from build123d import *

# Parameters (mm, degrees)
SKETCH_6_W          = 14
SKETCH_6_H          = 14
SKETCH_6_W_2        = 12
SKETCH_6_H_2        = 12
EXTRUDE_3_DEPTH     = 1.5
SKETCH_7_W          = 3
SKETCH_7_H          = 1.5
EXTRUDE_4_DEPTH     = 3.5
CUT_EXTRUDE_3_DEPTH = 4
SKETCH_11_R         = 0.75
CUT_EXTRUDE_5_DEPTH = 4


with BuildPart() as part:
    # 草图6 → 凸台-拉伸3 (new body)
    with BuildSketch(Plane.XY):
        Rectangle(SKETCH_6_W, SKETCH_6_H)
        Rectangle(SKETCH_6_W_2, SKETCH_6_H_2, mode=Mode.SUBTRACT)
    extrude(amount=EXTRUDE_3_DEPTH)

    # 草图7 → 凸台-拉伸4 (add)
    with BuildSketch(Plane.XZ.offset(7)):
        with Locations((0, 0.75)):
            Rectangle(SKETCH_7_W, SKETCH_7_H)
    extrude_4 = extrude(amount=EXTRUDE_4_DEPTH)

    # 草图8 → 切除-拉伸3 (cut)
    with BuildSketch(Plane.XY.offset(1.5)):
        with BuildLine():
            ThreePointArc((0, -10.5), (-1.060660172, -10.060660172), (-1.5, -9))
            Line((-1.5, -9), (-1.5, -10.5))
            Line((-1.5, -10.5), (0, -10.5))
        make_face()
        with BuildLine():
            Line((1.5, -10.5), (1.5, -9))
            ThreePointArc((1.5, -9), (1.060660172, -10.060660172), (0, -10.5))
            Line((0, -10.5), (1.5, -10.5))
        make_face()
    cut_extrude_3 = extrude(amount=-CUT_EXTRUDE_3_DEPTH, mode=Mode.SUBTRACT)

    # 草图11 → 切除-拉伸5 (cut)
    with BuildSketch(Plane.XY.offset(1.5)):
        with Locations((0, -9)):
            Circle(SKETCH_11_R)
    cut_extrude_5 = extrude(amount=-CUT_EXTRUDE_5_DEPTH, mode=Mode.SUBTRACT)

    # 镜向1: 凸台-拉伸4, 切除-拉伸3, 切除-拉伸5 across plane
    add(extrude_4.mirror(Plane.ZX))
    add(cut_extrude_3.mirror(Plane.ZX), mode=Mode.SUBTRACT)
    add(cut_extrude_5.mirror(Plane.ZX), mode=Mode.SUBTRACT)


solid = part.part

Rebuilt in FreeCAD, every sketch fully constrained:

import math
import FreeCAD as App
import Part
import Sketcher
from FreeCAD import Vector
Q = App.Units.Quantity

doc = App.newDocument("Part")
body = doc.addObject("PartDesign::Body", "Body")

# Sketch on XY plane
sketch1 = body.newObject("Sketcher::SketchObject", "Sketch")
sketch1.AttachmentSupport = (doc.getObject("XY_Plane"), [""])
sketch1.MapMode = "FlatFace"
sketch1.addGeometry(Part.LineSegment(Vector(-7, 7, 0), Vector(-7, -7, 0)), False)
sketch1.addGeometry(Part.LineSegment(Vector(-7, -7, 0), Vector(7, -7, 0)), False)
sketch1.addGeometry(Part.LineSegment(Vector(7, -7, 0), Vector(7, 7, 0)), False)
sketch1.addGeometry(Part.LineSegment(Vector(7, 7, 0), Vector(-7, 7, 0)), False)
sketch1.addGeometry(Part.LineSegment(Vector(6, -6, 0), Vector(-6, -6, 0)), False)
sketch1.addGeometry(Part.LineSegment(Vector(-6, -6, 0), Vector(-6, 6, 0)), False)
sketch1.addGeometry(Part.LineSegment(Vector(-6, 6, 0), Vector(6, 6, 0)), False)
sketch1.addGeometry(Part.LineSegment(Vector(6, 6, 0), Vector(6, -6, 0)), False)
sketch1.addConstraint(Sketcher.Constraint("Coincident", 0, 2, 1, 1))
sketch1.addConstraint(Sketcher.Constraint("Coincident", 1, 2, 2, 1))
sketch1.addConstraint(Sketcher.Constraint("Coincident", 2, 2, 3, 1))
sketch1.addConstraint(Sketcher.Constraint("Coincident", 3, 2, 0, 1))
sketch1.addConstraint(Sketcher.Constraint("Coincident", 4, 2, 5, 1))
sketch1.addConstraint(Sketcher.Constraint("Coincident", 5, 2, 6, 1))
sketch1.addConstraint(Sketcher.Constraint("Coincident", 6, 2, 7, 1))
sketch1.addConstraint(Sketcher.Constraint("Coincident", 7, 2, 4, 1))
sketch1.addConstraint(Sketcher.Constraint("Vertical", 0))
sketch1.addConstraint(Sketcher.Constraint("Horizontal", 1))
sketch1.addConstraint(Sketcher.Constraint("Vertical", 2))
sketch1.addConstraint(Sketcher.Constraint("Horizontal", 3))
sketch1.addConstraint(Sketcher.Constraint("Horizontal", 4))
sketch1.addConstraint(Sketcher.Constraint("Vertical", 5))
sketch1.addConstraint(Sketcher.Constraint("Horizontal", 6))
sketch1.addConstraint(Sketcher.Constraint("Vertical", 7))
sketch1.addConstraint(Sketcher.Constraint("Symmetric", 0, 2, 2, 2, -1, 1))
sketch1.addConstraint(Sketcher.Constraint("Symmetric", 4, 2, 6, 2, -1, 1))
sketch1.addConstraint(Sketcher.Constraint("Equal", 3, 0))
sketch1.addConstraint(Sketcher.Constraint("Equal", 6, 5))
sketch1.addConstraint(Sketcher.Constraint("DistanceX", 1, 1, 1, 2, Q("14 mm")))
sketch1.addConstraint(Sketcher.Constraint("DistanceX", 4, 2, 4, 1, Q("12 mm")))
pad1 = body.newObject("PartDesign::Pad", "Pad")
pad1.Profile = sketch1
pad1.Length = 1.5

# Sketch on XZ plane
sketch2 = body.newObject("Sketcher::SketchObject", "Sketch001")
sketch2.AttachmentSupport = (doc.getObject("XZ_Plane"), [""])
sketch2.MapMode = "FlatFace"
sketch2.AttachmentOffset = App.Placement(Vector(0, 0, 7), App.Rotation())
sketch2.addGeometry(Part.LineSegment(Vector(-1.5, 1.5, 0), Vector(-1.5, 0, 0)), False)
sketch2.addGeometry(Part.LineSegment(Vector(-1.5, 0, 0), Vector(1.5, 0, 0)), False)
sketch2.addGeometry(Part.LineSegment(Vector(1.5, 0, 0), Vector(1.5, 1.5, 0)), False)
sketch2.addGeometry(Part.LineSegment(Vector(1.5, 1.5, 0), Vector(-1.5, 1.5, 0)), False)
sketch2.addConstraint(Sketcher.Constraint("Coincident", 0, 2, 1, 1))
sketch2.addConstraint(Sketcher.Constraint("Coincident", 1, 2, 2, 1))
sketch2.addConstraint(Sketcher.Constraint("Coincident", 2, 2, 3, 1))
sketch2.addConstraint(Sketcher.Constraint("Coincident", 3, 2, 0, 1))
sketch2.addConstraint(Sketcher.Constraint("Vertical", 0))
sketch2.addConstraint(Sketcher.Constraint("Horizontal", 1))
sketch2.addConstraint(Sketcher.Constraint("Vertical", 2))
sketch2.addConstraint(Sketcher.Constraint("Horizontal", 3))
sketch2.addConstraint(Sketcher.Constraint("Symmetric", 0, 2, 1, 2, -1, 1))
sketch2.addConstraint(Sketcher.Constraint("DistanceX", 1, 1, 1, 2, Q("3 mm")))
sketch2.addConstraint(Sketcher.Constraint("DistanceY", 0, 2, 0, 1, Q("1.5 mm")))
pad2 = body.newObject("PartDesign::Pad", "Pad001")
pad2.Profile = sketch2
pad2.Length = 3.5

# Sketch on XY plane
sketch3 = body.newObject("Sketcher::SketchObject", "Sketch002")
sketch3.AttachmentSupport = (doc.getObject("XY_Plane"), [""])
sketch3.MapMode = "FlatFace"
sketch3.AttachmentOffset = App.Placement(Vector(0, 0, 1.5), App.Rotation())
sketch3.addGeometry(Part.ArcOfCircle(Part.Circle(Vector(0, -9, 0), Vector(0, 0, 1), 1.5), math.radians(180), math.radians(270)), False)
sketch3.addGeometry(Part.LineSegment(Vector(-1.5, -9, 0), Vector(-1.5, -10.5, 0)), False)
sketch3.addGeometry(Part.LineSegment(Vector(-1.5, -10.5, 0), Vector(0, -10.5, 0)), False)
sketch3.addGeometry(Part.LineSegment(Vector(1.5, -10.5, 0), Vector(1.5, -9, 0)), False)
sketch3.addGeometry(Part.ArcOfCircle(Part.Circle(Vector(0, -9, 0), Vector(0, 0, 1), 1.5), math.radians(-90), math.radians(0)), False)
sketch3.addGeometry(Part.LineSegment(Vector(0, -10.5, 0), Vector(1.5, -10.5, 0)), False)
sketch3.addConstraint(Sketcher.Constraint("Tangent", 0, 1, 1, 1))
sketch3.addConstraint(Sketcher.Constraint("Coincident", 1, 2, 2, 1))
sketch3.addConstraint(Sketcher.Constraint("Tangent", 2, 2, 0, 2))
sketch3.addConstraint(Sketcher.Constraint("Tangent", 3, 2, 4, 2))
sketch3.addConstraint(Sketcher.Constraint("Tangent", 4, 1, 5, 1))
sketch3.addConstraint(Sketcher.Constraint("Coincident", 5, 2, 3, 1))
sketch3.addConstraint(Sketcher.Constraint("Vertical", 1))
sketch3.addConstraint(Sketcher.Constraint("Horizontal", 2))
sketch3.addConstraint(Sketcher.Constraint("Vertical", 3))
sketch3.addConstraint(Sketcher.Constraint("Horizontal", 5))
sketch3.addConstraint(Sketcher.Constraint("Coincident", 4, 3, 0, 3))
sketch3.addConstraint(Sketcher.Constraint("Equal", 0, 4))
sketch3.addConstraint(Sketcher.Constraint("PointOnObject", 0, 3, -2))
sketch3.addConstraint(Sketcher.Constraint("Radius", 0, Q("1.5 mm")))
sketch3.addConstraint(Sketcher.Constraint("DistanceY", 0, 3, -1, 1, Q("9 mm")))
pocket1 = body.newObject("PartDesign::Pocket", "Pocket")
pocket1.Profile = sketch3
pocket1.Length = 4

# Sketch on XY plane
sketch4 = body.newObject("Sketcher::SketchObject", "Sketch003")
sketch4.AttachmentSupport = (doc.getObject("XY_Plane"), [""])
sketch4.MapMode = "FlatFace"
sketch4.AttachmentOffset = App.Placement(Vector(0, 0, 1.5), App.Rotation())
sketch4.addGeometry(Part.Circle(Vector(0, -9, 0), Vector(0, 0, 1), 0.75), False)
sketch4.addConstraint(Sketcher.Constraint("PointOnObject", 0, 3, -2))
sketch4.addConstraint(Sketcher.Constraint("Diameter", 0, Q("1.5 mm")))
sketch4.addConstraint(Sketcher.Constraint("DistanceY", 0, 3, -1, 1, Q("9 mm")))
pocket2 = body.newObject("PartDesign::Pocket", "Pocket001")
pocket2.Profile = sketch4
pocket2.Length = 4
doc.recompute()

mirrored = body.newObject("PartDesign::Mirrored", "Mirrored")
mirrored.Originals = [pad2, pocket1, pocket2]
mirrored.MirrorPlane = (doc.getObject("XZ_Plane"), [""])
body.Tip = mirrored

doc.recompute()
